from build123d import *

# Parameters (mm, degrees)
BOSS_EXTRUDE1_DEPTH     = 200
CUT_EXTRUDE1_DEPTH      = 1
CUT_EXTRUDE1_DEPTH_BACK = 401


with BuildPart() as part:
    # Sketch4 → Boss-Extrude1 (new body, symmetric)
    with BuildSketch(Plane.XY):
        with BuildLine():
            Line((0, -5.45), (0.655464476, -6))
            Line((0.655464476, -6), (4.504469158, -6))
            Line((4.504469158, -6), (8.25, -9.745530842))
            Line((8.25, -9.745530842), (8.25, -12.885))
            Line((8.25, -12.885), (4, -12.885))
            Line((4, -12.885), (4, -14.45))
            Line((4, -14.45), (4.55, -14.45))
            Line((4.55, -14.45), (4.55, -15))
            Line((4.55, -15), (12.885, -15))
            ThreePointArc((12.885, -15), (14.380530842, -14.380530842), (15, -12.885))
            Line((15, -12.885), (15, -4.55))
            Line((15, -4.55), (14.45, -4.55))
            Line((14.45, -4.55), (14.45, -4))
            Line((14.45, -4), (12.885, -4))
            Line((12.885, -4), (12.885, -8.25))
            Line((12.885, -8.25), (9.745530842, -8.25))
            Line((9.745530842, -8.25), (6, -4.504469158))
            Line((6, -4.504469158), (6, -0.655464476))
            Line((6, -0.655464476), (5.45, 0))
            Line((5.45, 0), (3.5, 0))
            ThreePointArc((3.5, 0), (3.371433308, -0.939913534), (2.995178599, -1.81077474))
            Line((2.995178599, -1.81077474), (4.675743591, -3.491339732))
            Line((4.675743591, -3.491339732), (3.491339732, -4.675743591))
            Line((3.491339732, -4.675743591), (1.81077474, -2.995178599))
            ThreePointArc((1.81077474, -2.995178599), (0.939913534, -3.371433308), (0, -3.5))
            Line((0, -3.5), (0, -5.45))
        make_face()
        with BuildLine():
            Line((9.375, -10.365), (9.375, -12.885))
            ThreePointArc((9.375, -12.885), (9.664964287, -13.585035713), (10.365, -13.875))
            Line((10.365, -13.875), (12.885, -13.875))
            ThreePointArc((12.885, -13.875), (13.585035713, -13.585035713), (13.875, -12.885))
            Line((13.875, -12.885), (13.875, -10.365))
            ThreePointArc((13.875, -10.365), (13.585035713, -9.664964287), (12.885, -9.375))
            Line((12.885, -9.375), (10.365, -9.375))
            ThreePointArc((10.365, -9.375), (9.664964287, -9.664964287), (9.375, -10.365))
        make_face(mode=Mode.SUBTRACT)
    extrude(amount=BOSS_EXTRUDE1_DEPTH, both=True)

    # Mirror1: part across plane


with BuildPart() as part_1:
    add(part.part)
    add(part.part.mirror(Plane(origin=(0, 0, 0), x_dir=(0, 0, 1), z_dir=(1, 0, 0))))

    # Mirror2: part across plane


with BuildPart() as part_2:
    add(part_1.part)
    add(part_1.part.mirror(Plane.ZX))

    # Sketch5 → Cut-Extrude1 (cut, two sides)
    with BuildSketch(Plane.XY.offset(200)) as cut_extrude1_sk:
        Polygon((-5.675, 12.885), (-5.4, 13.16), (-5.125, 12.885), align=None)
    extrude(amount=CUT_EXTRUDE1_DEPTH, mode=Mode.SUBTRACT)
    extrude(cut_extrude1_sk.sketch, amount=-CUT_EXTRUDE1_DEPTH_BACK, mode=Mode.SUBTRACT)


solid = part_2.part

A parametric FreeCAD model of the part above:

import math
import FreeCAD as App
import Part
import Sketcher
Q = App.Units.Quantity

doc = App.newDocument("Part")
body = doc.addObject("PartDesign::Body", "Body")

sketch1 = doc.addObject("Sketcher::SketchObject", "Sketch")
body.addObject(sketch1)
sketch1.AttachmentSupport = (doc.XY_Plane, [""])
sketch1.MapMode = "FlatFace"
sketch1.addGeometry([
    Part.LineSegment(App.Vector(0, -5.45, 0), App.Vector(0.655464, -6, 0)),
    Part.LineSegment(App.Vector(0.655464, -6, 0), App.Vector(4.504469, -6, 0)),
    Part.LineSegment(App.Vector(4.504469, -6, 0), App.Vector(8.25, -9.745531, 0)),
    Part.LineSegment(App.Vector(8.25, -9.745531, 0), App.Vector(8.25, -12.885, 0)),
    Part.LineSegment(App.Vector(8.25, -12.885, 0), App.Vector(4, -12.885, 0)),
    Part.LineSegment(App.Vector(4, -12.885, 0), App.Vector(4, -14.45, 0)),
    Part.LineSegment(App.Vector(4, -14.45, 0), App.Vector(4.55, -14.45, 0)),
    Part.LineSegment(App.Vector(4.55, -14.45, 0), App.Vector(4.55, -15, 0)),
    Part.LineSegment(App.Vector(4.55, -15, 0), App.Vector(12.885, -15, 0)),
    Part.ArcOfCircle(Part.Circle(App.Vector(12.885, -12.885, 0), App.Vector(0, 0, 1), 2.115), math.radians(-90), math.radians(0)),
    Part.LineSegment(App.Vector(15, -12.885, 0), App.Vector(15, -4.55, 0)),
    Part.LineSegment(App.Vector(15, -4.55, 0), App.Vector(14.45, -4.55, 0)),
    Part.LineSegment(App.Vector(14.45, -4.55, 0), App.Vector(14.45, -4, 0)),
    Part.LineSegment(App.Vector(14.45, -4, 0), App.Vector(12.885, -4, 0)),
    Part.LineSegment(App.Vector(12.885, -4, 0), App.Vector(12.885, -8.25, 0)),
    Part.LineSegment(App.Vector(12.885, -8.25, 0), App.Vector(9.745531, -8.25, 0)),
    Part.LineSegment(App.Vector(9.745531, -8.25, 0), App.Vector(6, -4.504469, 0)),
    Part.LineSegment(App.Vector(6, -4.504469, 0), App.Vector(6, -0.655464, 0)),
    Part.LineSegment(App.Vector(6, -0.655464, 0), App.Vector(5.45, 0, 0)),
    Part.LineSegment(App.Vector(5.45, 0, 0), App.Vector(3.5, 0, 0)),
    Part.ArcOfCircle(Part.Circle(App.Vector(0, 0, 0), App.Vector(0, 0, 1), 3.5), math.radians(-31.155614), math.radians(0)),
    Part.LineSegment(App.Vector(2.995179, -1.810775, 0), App.Vector(4.675744, -3.49134, 0)),
    Part.LineSegment(App.Vector(4.675744, -3.49134, 0), App.Vector(3.49134, -4.675744, 0)),
    Part.LineSegment(App.Vector(3.49134, -4.675744, 0), App.Vector(1.810775, -2.995179, 0)),
    Part.ArcOfCircle(Part.Circle(App.Vector(0, 0, 0), App.Vector(0, 0, 1), 3.5), math.radians(-90), math.radians(-58.844386)),
    Part.LineSegment(App.Vector(0, -3.5, 0), App.Vector(0, -5.45, 0)),
    Part.LineSegment(App.Vector(9.375, -12.885, 0), App.Vector(9.375, -10.365, 0)),
    Part.ArcOfCircle(Part.Circle(App.Vector(10.365, -10.365, 0), App.Vector(0, 0, 1), 0.99), math.radians(90), math.radians(180)),
    Part.LineSegment(App.Vector(10.365, -9.375, 0), App.Vector(12.885, -9.375, 0)),
    Part.ArcOfCircle(Part.Circle(App.Vector(12.885, -10.365, 0), App.Vector(0, 0, 1), 0.99), math.radians(0), math.radians(90)),
    Part.LineSegment(App.Vector(13.875, -10.365, 0), App.Vector(13.875, -12.885, 0)),
    Part.ArcOfCircle(Part.Circle(App.Vector(12.885, -12.885, 0), App.Vector(0, 0, 1), 0.99), math.radians(-90), math.radians(0)),
    Part.LineSegment(App.Vector(12.885, -13.875, 0), App.Vector(10.365, -13.875, 0)),
    Part.ArcOfCircle(Part.Circle(App.Vector(10.365, -12.885, 0), App.Vector(0, 0, 1), 0.99), math.radians(-180), math.radians(-90)),
], False)
sketch1.addConstraint([
    Sketcher.Constraint("Coincident", 0, 2, 1, 1),
    Sketcher.Constraint("Coincident", 1, 2, 2, 1),
    Sketcher.Constraint("Coincident", 2, 2, 3, 1),
    Sketcher.Constraint("Coincident", 3, 2, 4, 1),
    Sketcher.Constraint("Coincident", 4, 2, 5, 1),
    Sketcher.Constraint("Coincident", 5, 2, 6, 1),
    Sketcher.Constraint("Coincident", 6, 2, 7, 1),
    Sketcher.Constraint("Coincident", 7, 2, 8, 1),
    Sketcher.Constraint("Tangent", 8, 2, 9, 1),
    Sketcher.Constraint("Tangent", 9, 2, 10, 1),
    Sketcher.Constraint("Coincident", 10, 2, 11, 1),
    Sketcher.Constraint("Coincident", 11, 2, 12, 1),
    Sketcher.Constraint("Coincident", 12, 2, 13, 1),
    Sketcher.Constraint("Coincident", 13, 2, 14, 1),
    Sketcher.Constraint("Coincident", 14, 2, 15, 1),
    Sketcher.Constraint("Coincident", 15, 2, 16, 1),
    Sketcher.Constraint("Coincident", 16, 2, 17, 1),
    Sketcher.Constraint("Coincident", 17, 2, 18, 1),
    Sketcher.Constraint("Coincident", 18, 2, 19, 1),
    Sketcher.Constraint("Coincident", 19, 2, 20, 2),
    Sketcher.Constraint("Coincident", 20, 1, 21, 1),
    Sketcher.Constraint("Coincident", 21, 2, 22, 1),
    Sketcher.Constraint("Coincident", 22, 2, 23, 1),
    Sketcher.Constraint("Coincident", 23, 2, 24, 2),
    Sketcher.Constraint("Coincident", 24, 1, 25, 1),
    Sketcher.Constraint("Coincident", 25, 2, 0, 1),
    Sketcher.Constraint("Tangent", 26, 2, 27, 2),
    Sketcher.Constraint("Tangent", 27, 1, 28, 1),
    Sketcher.Constraint("Tangent", 28, 2, 29, 2),
    Sketcher.Constraint("Tangent", 29, 1, 30, 1),
    Sketcher.Constraint("Tangent", 30, 2, 31, 2),
    Sketcher.Constraint("Tangent", 31, 1, 32, 1),
    Sketcher.Constraint("Tangent", 32, 2, 33, 2),
    Sketcher.Constraint("Tangent", 33, 1, 26, 1),
    Sketcher.Constraint("Horizontal", 1),
    Sketcher.Constraint("Vertical", 3),
    Sketcher.Constraint("Horizontal", 4),
    Sketcher.Constraint("Vertical", 5),
    Sketcher.Constraint("Horizontal", 6),
    Sketcher.Constraint("Vertical", 7),
    Sketcher.Constraint("Horizontal", 8),
    Sketcher.Constraint("Vertical", 10),
    Sketcher.Constraint("Horizontal", 11),
    Sketcher.Constraint("Vertical", 12),
    Sketcher.Constraint("Horizontal", 13),
    Sketcher.Constraint("Vertical", 14),
    Sketcher.Constraint("Horizontal", 15),
    Sketcher.Constraint("Vertical", 17),
    Sketcher.Constraint("Horizontal", 19),
    Sketcher.Constraint("Vertical", 25),
    Sketcher.Constraint("Vertical", 26),
    Sketcher.Constraint("Horizontal", 28),
    Sketcher.Constraint("Vertical", 30),
    Sketcher.Constraint("Horizontal", 32),
    Sketcher.Constraint("Coincident", 20, 3, -1, 1),
    Sketcher.Constraint("Coincident", 24, 3, -1, 1),
    Sketcher.Constraint("Coincident", 31, 3, 9, 3),
    Sketcher.Constraint("Equal", 20, 24),
    Sketcher.Constraint("Equal", 27, 29),
    Sketcher.Constraint("Equal", 29, 31),
    Sketcher.Constraint("Equal", 31, 33),
    Sketcher.Constraint("PointOnObject", 18, 2, -1),
    Sketcher.Constraint("PointOnObject", 24, 1, -2),
    Sketcher.Constraint("Parallel", 2, 16),
    Sketcher.Constraint("Parallel", 16, 21),
    Sketcher.Constraint("Perpendicular", 21, 22),
    Sketcher.Constraint("Perpendicular", 22, 23),
    Sketcher.Constraint("Horizontal", 33, 3, 3, 2),
    Sketcher.Constraint("Vertical", 8, 2, 13, 2),
    Sketcher.Constraint("Equal", 6, 11),
    Sketcher.Constraint("Equal", 15, 3),
    Sketcher.Constraint("Equal", 13, 5),
    Sketcher.Constraint("Equal", 8, 10),
    Sketcher.Constraint("Equal", 7, 12),
    Sketcher.Constraint("Equal", 4, 14),
    Sketcher.Constraint("Equal", 1, 17),
    Sketcher.Constraint("Equal", 19, 25),
    Sketcher.Constraint("Equal", 32, 26),
    Sketcher.Constraint("Equal", 2, 16),
    Sketcher.Constraint("Equal", 0, 18),
    Sketcher.Constraint("Equal", 21, 23),
    Sketcher.Constraint("Radius", 20, Q("3.5 mm")),
    Sketcher.Constraint("Angle", 0, Q("-40 deg")),
    Sketcher.Constraint("Angle", 2, Q("-45 deg")),
    Sketcher.Constraint("Radius", 27, Q("0.99 mm")),
    Sketcher.Constraint("DistanceY", 0, 2, -1, 1, Q("6 mm")),
    Sketcher.Constraint("DistanceX", -1, 1, 4, 2, Q("4 mm")),
    Sketcher.Constraint("DistanceY", 7, 2, -1, 1, Q("15 mm")),
    Sketcher.Constraint("Radius", 9, Q("2.115 mm")),
    Sketcher.Constraint("DistanceX", 4, 2, 4, 1, Q("4.25 mm")),
    Sketcher.Constraint("DistanceX", 6, 1, 6, 2, Q("0.55 mm")),
    Sketcher.Constraint("DistanceX", 19, 2, 19, 1, Q("1.95 mm")),
    Sketcher.Constraint("DistanceX", 28, 1, 28, 2, Q("2.52 mm")),
    Sketcher.Constraint("Distance", 22, Q("1.675 mm")),
    Sketcher.Constraint("DistanceX", 15, 2, 15, 1, Q("3.139469 mm")),
    Sketcher.Constraint("DistanceY", 21, 2, -1, 1, Q("3.49134 mm")),
])
pad1 = doc.addObject("PartDesign::Pad", "Pad")
body.addObject(pad1)
pad1.Profile = sketch1
pad1.Length = 400
pad1.Midplane = True
body2 = doc.addObject("PartDesign::Body", "Body001")
doc.recompute()

body2.BaseFeature = body
doc.recompute()

mirroring = doc.addObject("Part::Mirroring", "Mirroring")
mirroring.Source = body
mirroring.Base = App.Vector(0, 0, 0)
mirroring.Normal = App.Vector(1, 0, 0)
body3 = doc.addObject("PartDesign::Body", "Body002")
body3.BaseFeature = mirroring
boolean = doc.addObject("PartDesign::Boolean", "Boolean")
body2.addObject(boolean)
boolean.Type = "Fuse"
boolean.addObjects([body3])
doc.recompute()
body4 = doc.addObject("PartDesign::Body", "Body003")
doc.recompute()

body4.BaseFeature = body2
doc.recompute()

mirroring2 = doc.addObject("Part::Mirroring", "Mirroring001")
mirroring2.Source = body2
mirroring2.Base = App.Vector(0, 0, 0)
mirroring2.Normal = App.Vector(0, 1, 0)
body5 = doc.addObject("PartDesign::Body", "Body004")
body5.BaseFeature = mirroring2
boolean2 = doc.addObject("PartDesign::Boolean", "Boolean001")
body4.addObject(boolean2)
boolean2.Type = "Fuse"
boolean2.addObjects([body5])
doc.recompute()

sketch2 = doc.addObject("Sketcher::SketchObject", "Sketch001")
body4.addObject(sketch2)
sketch2.AttachmentSupport = (doc.getObject("XY_Plane003"), [""])
sketch2.MapMode = "FlatFace"
sketch2.AttachmentOffset = App.Placement(App.Vector(0, 0, 200), App.Rotation())
sketch2.addGeometry([
    Part.LineSegment(App.Vector(-5.4, 13.16, 0), App.Vector(-5.675, 12.885, 0)),
    Part.LineSegment(App.Vector(-5.675, 12.885, 0), App.Vector(-5.125, 12.885, 0)),
    Part.LineSegment(App.Vector(-5.125, 12.885, 0), App.Vector(-5.4, 13.16, 0)),
], False)
sketch2.addConstraint([
    Sketcher.Constraint("Coincident", 0, 2, 1, 1),
    Sketcher.Constraint("Coincident", 1, 2, 2, 1),
    Sketcher.Constraint("Coincident", 2, 2, 0, 1),
    Sketcher.Constraint("Horizontal", 1),
    Sketcher.Constraint("Perpendicular", 0, 2),
    Sketcher.Constraint("Equal", 0, 2),
    Sketcher.Constraint("DistanceX", 1, 1, 1, 2, Q("0.55 mm")),
    Sketcher.Constraint("DistanceX", 2, 2, -1, 1, Q("5.4 mm")),
    Sketcher.Constraint("DistanceY", -1, 1, 2, 2, Q("13.16 mm")),
])
pocket1 = doc.addObject("PartDesign::Pocket", "Pocket")
body4.addObject(pocket1)
pocket1.Profile = sketch2
pocket1.Type = "ThroughAll"
pocket1.Midplane = True
mirroring.Visibility = False
mirroring2.Visibility = False

doc.recompute()
